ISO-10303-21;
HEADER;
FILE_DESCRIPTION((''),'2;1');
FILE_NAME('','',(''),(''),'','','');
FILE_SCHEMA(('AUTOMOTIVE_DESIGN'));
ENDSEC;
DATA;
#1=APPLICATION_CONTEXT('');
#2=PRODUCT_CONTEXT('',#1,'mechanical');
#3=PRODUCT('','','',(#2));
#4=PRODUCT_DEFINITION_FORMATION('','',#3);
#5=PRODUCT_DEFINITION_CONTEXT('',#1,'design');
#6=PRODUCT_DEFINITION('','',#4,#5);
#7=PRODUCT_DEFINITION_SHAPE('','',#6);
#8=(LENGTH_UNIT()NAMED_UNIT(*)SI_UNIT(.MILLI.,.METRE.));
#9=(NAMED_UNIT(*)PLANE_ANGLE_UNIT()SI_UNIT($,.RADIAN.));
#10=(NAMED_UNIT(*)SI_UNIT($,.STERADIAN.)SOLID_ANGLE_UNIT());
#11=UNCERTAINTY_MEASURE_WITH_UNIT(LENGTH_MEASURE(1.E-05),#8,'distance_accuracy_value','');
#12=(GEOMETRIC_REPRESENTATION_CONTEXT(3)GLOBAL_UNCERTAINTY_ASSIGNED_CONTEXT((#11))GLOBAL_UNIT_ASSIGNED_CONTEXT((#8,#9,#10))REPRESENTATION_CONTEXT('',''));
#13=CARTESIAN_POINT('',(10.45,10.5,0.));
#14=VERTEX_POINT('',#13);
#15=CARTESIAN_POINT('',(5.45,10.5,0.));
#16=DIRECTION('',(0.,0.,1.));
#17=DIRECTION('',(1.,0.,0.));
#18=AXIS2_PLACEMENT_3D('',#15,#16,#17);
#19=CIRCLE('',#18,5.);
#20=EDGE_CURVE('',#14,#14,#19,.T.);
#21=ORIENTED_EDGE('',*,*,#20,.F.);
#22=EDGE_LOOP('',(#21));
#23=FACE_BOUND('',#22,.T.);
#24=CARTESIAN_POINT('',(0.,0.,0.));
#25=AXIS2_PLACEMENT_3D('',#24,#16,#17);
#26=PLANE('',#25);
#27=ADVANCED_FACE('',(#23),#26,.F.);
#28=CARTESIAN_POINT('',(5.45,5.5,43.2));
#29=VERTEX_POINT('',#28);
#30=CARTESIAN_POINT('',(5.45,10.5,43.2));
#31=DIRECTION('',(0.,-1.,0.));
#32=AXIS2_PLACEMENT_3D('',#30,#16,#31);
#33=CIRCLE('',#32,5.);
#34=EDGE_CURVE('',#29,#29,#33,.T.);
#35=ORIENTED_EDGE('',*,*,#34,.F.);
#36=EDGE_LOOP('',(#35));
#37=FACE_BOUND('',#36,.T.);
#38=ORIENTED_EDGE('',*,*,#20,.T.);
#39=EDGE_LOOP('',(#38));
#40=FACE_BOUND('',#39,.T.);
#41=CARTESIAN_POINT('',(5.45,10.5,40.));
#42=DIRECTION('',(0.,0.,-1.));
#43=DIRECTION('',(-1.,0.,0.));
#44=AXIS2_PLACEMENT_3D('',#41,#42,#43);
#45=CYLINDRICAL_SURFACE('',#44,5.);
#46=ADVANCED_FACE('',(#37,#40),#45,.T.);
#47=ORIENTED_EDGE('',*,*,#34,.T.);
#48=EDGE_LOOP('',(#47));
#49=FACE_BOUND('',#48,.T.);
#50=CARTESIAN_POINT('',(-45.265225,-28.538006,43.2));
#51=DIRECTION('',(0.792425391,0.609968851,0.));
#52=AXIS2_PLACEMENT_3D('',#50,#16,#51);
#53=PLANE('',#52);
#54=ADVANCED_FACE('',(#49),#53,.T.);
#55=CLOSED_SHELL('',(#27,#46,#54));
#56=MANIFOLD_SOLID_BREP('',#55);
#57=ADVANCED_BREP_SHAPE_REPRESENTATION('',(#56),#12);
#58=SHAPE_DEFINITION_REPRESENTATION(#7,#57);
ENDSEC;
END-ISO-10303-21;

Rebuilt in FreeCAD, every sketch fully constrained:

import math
import FreeCAD as App
import Part
import Sketcher
Q = App.Units.Quantity

doc = App.newDocument("Part")
body = doc.addObject("PartDesign::Body", "Body")

# Sketch on XY plane
sketch1 = doc.addObject("Sketcher::SketchObject", "Sketch")
body.addObject(sketch1)
sketch1.AttachmentSupport = (doc.XY_Plane, [""])
sketch1.MapMode = "FlatFace"
sketch1.addGeometry(Part.ArcOfCircle(Part.Circle(App.Vector(5.45, 10.5, 0), App.Vector(0, 0, 1), 5), math.radians(68.434815), math.radians(111.565185)), False)
sketch1.addGeometry(Part.ArcOfCircle(Part.Circle(App.Vector(5.45, 10.5, 0), App.Vector(0, 0, 1), 5), math.radians(111.565185), math.radians(360)), False)
sketch1.addGeometry(Part.ArcOfCircle(Part.Circle(App.Vector(5.45, 10.5, 0), App.Vector(0, 0, 1), 5), math.radians(0), math.radians(68.434815)), False)
sketch1.addConstraint(Sketcher.Constraint("Tangent", 0, 2, 1, 1))
sketch1.addConstraint(Sketcher.Constraint("Tangent", 1, 2, 2, 1))
sketch1.addConstraint(Sketcher.Constraint("Tangent", 2, 2, 0, 1))
sketch1.addConstraint(Sketcher.Constraint("Horizontal", 2, 3, 1, 2))
sketch1.addConstraint(Sketcher.Constraint("Horizontal", 0, 2, 2, 2))
sketch1.addConstraint(Sketcher.Constraint("Radius", 0, Q("5 mm")))
sketch1.addConstraint(Sketcher.Constraint("DistanceY", -1, 1, 0, 3, Q("10.5 mm")))
sketch1.addConstraint(Sketcher.Constraint("DistanceX", -1, 1, 0, 3, Q("5.45 mm")))
sketch1.addConstraint(Sketcher.Constraint("DistanceY", -1, 1, 0, 2, Q("15.15 mm")))
pad1 = doc.addObject("PartDesign::Pad", "Pad")
body.addObject(pad1)
pad1.Profile = sketch1
pad1.Length = 40

# Sketch on XY plane
sketch2 = doc.addObject("Sketcher::SketchObject", "Sketch001")
body.addObject(sketch2)
sketch2.AttachmentSupport = (doc.XY_Plane, [""])
sketch2.MapMode = "FlatFace"
sketch2.AttachmentOffset = App.Placement(App.Vector(0, 0, 40), App.Rotation())
sketch2.addGeometry(Part.Circle(App.Vector(5.45, 10.5, 0), App.Vector(0, 0, 1), 5), False)
sketch2.addConstraint(Sketcher.Constraint("Diameter", 0, Q("10 mm")))
sketch2.addConstraint(Sketcher.Constraint("DistanceY", -1, 1, 0, 3, Q("10.5 mm")))
sketch2.addConstraint(Sketcher.Constraint("DistanceX", -1, 1, 0, 3, Q("5.45 mm")))
pad2 = doc.addObject("PartDesign::Pad", "Pad001")
body.addObject(pad2)
pad2.Profile = sketch2
pad2.Length = 3.2

doc.recompute()
